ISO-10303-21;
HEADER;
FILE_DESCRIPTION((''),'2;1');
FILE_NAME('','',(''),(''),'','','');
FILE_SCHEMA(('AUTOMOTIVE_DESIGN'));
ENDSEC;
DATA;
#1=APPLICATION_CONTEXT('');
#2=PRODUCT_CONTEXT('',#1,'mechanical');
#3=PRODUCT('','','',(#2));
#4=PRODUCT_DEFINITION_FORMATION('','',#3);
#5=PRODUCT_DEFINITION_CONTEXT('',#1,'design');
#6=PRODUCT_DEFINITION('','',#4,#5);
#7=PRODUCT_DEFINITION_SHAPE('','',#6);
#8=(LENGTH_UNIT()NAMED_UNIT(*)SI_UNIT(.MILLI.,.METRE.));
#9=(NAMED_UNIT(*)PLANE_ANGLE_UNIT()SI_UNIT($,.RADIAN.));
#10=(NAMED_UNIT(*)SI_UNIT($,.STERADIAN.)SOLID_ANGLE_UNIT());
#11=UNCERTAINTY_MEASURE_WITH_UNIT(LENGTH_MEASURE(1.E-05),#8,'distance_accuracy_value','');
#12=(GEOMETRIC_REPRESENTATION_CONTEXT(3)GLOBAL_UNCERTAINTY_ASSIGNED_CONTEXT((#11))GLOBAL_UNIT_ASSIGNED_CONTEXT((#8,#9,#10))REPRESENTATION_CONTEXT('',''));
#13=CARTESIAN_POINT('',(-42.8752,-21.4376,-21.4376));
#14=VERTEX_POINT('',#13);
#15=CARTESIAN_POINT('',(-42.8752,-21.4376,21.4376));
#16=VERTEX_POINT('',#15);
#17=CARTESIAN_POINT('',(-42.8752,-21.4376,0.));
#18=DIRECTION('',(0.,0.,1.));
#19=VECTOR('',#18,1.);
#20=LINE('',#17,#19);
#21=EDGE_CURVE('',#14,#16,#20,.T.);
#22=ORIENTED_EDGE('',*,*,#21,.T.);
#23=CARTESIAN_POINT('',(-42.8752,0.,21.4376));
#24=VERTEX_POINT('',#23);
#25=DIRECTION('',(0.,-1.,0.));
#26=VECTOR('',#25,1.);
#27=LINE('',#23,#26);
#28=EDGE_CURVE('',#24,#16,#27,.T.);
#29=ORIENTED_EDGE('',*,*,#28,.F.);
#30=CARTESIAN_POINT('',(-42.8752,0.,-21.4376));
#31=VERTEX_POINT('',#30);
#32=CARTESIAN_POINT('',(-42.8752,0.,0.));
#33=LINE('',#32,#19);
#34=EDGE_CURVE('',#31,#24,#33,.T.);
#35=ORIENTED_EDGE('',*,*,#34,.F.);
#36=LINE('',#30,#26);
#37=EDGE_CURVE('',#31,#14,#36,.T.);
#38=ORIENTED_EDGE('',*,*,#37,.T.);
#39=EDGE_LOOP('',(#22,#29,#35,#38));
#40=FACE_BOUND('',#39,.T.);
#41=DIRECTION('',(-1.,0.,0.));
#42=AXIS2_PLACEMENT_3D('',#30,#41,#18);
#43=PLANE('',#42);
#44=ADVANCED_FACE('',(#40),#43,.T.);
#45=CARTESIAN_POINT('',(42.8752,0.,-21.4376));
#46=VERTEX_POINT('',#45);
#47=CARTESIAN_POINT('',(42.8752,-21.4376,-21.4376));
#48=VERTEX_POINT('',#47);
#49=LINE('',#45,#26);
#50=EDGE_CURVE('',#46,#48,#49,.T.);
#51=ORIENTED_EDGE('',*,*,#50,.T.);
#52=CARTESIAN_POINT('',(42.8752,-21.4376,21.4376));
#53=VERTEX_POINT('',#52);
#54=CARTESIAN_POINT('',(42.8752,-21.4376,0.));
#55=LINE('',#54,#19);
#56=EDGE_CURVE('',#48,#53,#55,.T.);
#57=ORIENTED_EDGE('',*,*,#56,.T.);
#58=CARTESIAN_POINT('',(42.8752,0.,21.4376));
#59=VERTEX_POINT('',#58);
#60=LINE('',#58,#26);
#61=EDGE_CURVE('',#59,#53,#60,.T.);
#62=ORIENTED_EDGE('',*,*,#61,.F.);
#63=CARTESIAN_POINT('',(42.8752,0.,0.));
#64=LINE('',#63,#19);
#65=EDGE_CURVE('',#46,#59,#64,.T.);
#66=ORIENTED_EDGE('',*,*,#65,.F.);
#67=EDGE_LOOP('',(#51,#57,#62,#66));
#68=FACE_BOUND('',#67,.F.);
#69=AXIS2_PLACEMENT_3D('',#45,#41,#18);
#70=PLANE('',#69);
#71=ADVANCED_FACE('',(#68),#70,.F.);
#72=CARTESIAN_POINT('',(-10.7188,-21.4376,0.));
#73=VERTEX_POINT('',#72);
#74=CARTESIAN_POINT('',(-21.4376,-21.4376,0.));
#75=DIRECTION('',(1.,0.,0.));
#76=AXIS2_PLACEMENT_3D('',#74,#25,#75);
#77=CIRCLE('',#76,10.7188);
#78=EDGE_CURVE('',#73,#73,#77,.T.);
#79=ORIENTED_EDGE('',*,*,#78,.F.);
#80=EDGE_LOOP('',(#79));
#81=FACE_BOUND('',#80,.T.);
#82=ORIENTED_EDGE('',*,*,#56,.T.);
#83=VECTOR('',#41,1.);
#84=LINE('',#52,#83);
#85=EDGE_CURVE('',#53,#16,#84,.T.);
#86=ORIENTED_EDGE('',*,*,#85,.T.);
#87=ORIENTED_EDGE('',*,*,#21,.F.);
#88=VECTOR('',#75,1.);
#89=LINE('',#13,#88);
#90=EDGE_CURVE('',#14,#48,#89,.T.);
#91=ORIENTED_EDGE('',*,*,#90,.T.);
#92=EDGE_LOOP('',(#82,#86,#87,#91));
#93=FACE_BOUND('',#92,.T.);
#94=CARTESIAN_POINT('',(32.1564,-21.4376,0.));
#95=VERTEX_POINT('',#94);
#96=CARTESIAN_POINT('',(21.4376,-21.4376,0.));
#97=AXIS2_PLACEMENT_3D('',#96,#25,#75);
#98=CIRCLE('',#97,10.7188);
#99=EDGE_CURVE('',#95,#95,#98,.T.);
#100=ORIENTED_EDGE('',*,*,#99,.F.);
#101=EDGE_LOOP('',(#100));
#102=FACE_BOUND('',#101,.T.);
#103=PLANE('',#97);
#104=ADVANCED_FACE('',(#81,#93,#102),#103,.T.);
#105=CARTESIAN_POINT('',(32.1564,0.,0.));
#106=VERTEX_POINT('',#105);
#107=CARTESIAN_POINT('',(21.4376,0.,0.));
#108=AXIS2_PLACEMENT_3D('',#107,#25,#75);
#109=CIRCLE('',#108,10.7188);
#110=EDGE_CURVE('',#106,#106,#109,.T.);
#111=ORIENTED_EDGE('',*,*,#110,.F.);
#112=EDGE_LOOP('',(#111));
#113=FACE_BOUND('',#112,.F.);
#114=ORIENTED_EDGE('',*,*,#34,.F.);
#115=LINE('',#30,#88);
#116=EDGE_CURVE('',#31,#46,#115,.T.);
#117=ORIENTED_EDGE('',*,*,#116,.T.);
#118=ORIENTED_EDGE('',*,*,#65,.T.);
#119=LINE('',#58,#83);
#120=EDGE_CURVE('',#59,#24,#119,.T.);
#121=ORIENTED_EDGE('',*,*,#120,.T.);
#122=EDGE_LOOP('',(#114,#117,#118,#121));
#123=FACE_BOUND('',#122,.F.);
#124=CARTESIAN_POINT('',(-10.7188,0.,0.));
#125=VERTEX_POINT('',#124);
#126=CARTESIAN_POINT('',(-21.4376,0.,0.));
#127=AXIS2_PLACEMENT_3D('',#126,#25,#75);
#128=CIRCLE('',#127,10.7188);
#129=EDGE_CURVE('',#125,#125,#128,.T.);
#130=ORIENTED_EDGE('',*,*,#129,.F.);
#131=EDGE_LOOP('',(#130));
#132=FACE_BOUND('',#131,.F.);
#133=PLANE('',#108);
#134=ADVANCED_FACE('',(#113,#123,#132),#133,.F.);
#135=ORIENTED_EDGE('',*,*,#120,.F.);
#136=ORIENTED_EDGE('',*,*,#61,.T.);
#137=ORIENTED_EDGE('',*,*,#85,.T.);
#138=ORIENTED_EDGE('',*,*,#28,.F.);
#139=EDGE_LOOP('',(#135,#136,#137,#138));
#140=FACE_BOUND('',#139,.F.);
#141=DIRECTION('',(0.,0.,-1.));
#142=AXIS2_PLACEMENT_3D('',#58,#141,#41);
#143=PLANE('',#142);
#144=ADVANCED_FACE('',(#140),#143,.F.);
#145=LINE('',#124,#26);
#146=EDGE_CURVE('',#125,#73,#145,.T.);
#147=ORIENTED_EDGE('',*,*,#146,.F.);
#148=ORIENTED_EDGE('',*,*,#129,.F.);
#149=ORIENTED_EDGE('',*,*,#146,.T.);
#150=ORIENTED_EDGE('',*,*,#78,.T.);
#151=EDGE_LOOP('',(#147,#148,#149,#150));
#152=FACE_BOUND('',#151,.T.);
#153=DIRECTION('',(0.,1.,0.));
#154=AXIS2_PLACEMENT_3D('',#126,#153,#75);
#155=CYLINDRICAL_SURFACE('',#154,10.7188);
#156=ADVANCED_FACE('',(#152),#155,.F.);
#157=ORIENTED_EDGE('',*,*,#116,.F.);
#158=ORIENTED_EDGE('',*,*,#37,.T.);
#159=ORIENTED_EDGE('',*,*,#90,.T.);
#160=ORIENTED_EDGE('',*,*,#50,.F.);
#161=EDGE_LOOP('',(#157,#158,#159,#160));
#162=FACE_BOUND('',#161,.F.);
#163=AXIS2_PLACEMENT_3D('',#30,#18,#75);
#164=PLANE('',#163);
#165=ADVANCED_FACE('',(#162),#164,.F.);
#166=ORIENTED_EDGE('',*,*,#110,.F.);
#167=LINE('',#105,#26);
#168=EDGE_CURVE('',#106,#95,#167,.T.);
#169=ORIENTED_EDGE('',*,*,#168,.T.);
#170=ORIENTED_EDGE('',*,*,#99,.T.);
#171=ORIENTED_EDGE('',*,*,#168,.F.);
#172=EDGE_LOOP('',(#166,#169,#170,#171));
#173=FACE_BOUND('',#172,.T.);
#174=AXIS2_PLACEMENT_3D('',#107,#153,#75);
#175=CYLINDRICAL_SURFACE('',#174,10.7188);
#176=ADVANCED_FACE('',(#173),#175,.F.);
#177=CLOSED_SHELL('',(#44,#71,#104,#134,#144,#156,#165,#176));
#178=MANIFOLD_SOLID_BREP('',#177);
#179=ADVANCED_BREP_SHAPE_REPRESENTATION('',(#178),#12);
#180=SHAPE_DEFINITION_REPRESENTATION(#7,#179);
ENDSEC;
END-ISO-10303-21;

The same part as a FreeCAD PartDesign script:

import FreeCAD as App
import Part
import Sketcher
Q = App.Units.Quantity


def add_polygon(sketch, points):
    """Adds a closed chain of lines whose ends are joined by coincident constraints."""
    first, n = sketch.GeometryCount, len(points)
    for a, b in zip(points, points[1:] + points[:1]):
        sketch.addGeometry(Part.LineSegment(App.Vector(*a, 0), App.Vector(*b, 0)), False)
    for i in range(n):
        sketch.addConstraint(Sketcher.Constraint("Coincident", first + i, 2, first + (i + 1) % n, 1))

doc = App.newDocument("Part")
body = doc.addObject("PartDesign::Body", "Body")

sketch1 = doc.addObject("Sketcher::SketchObject", "Sketch")
body.addObject(sketch1)
sketch1.AttachmentSupport = (doc.XZ_Plane, [""])
sketch1.MapMode = "FlatFace"
add_polygon(sketch1, [(43, -21), (43, 21), (-43, 21), (-43, -21)])
sketch1.addGeometry(Part.Circle(App.Vector(-21, 0, 0), App.Vector(0, 0, 1), 11), False)
sketch1.addGeometry(Part.Circle(App.Vector(21, 0, 0), App.Vector(0, 0, 1), 11), False)
sketch1.addConstraint(Sketcher.Constraint("Vertical", 0))
sketch1.addConstraint(Sketcher.Constraint("Horizontal", 1))
sketch1.addConstraint(Sketcher.Constraint("Vertical", 2))
sketch1.addConstraint(Sketcher.Constraint("Horizontal", 3))
sketch1.addConstraint(Sketcher.Constraint("Equal", 4, 5))
sketch1.addConstraint(Sketcher.Constraint("Symmetric", 4, 3, 5, 3, -1, 1))
sketch1.addConstraint(Sketcher.Constraint("Symmetric", 0, 2, 2, 2, -1, 1))
sketch1.addConstraint(Sketcher.Constraint("PointOnObject", 4, 3, -1))
sketch1.addConstraint(Sketcher.Constraint("Diameter", 4, Q("0.844 in")))
sketch1.addConstraint(Sketcher.Constraint("DistanceX", 1, 2, 1, 1, Q("3.376 in")))
sketch1.addConstraint(Sketcher.Constraint("DistanceY", 0, 1, 0, 2, Q("1.688 in")))
sketch1.addConstraint(Sketcher.Constraint("DistanceX", 4, 3, -1, 1, Q("0.844 in")))
pad1 = doc.addObject("PartDesign::Pad", "Pad")
body.addObject(pad1)
pad1.Profile = sketch1
pad1.Length = Q("0.844 in")

doc.recompute()
